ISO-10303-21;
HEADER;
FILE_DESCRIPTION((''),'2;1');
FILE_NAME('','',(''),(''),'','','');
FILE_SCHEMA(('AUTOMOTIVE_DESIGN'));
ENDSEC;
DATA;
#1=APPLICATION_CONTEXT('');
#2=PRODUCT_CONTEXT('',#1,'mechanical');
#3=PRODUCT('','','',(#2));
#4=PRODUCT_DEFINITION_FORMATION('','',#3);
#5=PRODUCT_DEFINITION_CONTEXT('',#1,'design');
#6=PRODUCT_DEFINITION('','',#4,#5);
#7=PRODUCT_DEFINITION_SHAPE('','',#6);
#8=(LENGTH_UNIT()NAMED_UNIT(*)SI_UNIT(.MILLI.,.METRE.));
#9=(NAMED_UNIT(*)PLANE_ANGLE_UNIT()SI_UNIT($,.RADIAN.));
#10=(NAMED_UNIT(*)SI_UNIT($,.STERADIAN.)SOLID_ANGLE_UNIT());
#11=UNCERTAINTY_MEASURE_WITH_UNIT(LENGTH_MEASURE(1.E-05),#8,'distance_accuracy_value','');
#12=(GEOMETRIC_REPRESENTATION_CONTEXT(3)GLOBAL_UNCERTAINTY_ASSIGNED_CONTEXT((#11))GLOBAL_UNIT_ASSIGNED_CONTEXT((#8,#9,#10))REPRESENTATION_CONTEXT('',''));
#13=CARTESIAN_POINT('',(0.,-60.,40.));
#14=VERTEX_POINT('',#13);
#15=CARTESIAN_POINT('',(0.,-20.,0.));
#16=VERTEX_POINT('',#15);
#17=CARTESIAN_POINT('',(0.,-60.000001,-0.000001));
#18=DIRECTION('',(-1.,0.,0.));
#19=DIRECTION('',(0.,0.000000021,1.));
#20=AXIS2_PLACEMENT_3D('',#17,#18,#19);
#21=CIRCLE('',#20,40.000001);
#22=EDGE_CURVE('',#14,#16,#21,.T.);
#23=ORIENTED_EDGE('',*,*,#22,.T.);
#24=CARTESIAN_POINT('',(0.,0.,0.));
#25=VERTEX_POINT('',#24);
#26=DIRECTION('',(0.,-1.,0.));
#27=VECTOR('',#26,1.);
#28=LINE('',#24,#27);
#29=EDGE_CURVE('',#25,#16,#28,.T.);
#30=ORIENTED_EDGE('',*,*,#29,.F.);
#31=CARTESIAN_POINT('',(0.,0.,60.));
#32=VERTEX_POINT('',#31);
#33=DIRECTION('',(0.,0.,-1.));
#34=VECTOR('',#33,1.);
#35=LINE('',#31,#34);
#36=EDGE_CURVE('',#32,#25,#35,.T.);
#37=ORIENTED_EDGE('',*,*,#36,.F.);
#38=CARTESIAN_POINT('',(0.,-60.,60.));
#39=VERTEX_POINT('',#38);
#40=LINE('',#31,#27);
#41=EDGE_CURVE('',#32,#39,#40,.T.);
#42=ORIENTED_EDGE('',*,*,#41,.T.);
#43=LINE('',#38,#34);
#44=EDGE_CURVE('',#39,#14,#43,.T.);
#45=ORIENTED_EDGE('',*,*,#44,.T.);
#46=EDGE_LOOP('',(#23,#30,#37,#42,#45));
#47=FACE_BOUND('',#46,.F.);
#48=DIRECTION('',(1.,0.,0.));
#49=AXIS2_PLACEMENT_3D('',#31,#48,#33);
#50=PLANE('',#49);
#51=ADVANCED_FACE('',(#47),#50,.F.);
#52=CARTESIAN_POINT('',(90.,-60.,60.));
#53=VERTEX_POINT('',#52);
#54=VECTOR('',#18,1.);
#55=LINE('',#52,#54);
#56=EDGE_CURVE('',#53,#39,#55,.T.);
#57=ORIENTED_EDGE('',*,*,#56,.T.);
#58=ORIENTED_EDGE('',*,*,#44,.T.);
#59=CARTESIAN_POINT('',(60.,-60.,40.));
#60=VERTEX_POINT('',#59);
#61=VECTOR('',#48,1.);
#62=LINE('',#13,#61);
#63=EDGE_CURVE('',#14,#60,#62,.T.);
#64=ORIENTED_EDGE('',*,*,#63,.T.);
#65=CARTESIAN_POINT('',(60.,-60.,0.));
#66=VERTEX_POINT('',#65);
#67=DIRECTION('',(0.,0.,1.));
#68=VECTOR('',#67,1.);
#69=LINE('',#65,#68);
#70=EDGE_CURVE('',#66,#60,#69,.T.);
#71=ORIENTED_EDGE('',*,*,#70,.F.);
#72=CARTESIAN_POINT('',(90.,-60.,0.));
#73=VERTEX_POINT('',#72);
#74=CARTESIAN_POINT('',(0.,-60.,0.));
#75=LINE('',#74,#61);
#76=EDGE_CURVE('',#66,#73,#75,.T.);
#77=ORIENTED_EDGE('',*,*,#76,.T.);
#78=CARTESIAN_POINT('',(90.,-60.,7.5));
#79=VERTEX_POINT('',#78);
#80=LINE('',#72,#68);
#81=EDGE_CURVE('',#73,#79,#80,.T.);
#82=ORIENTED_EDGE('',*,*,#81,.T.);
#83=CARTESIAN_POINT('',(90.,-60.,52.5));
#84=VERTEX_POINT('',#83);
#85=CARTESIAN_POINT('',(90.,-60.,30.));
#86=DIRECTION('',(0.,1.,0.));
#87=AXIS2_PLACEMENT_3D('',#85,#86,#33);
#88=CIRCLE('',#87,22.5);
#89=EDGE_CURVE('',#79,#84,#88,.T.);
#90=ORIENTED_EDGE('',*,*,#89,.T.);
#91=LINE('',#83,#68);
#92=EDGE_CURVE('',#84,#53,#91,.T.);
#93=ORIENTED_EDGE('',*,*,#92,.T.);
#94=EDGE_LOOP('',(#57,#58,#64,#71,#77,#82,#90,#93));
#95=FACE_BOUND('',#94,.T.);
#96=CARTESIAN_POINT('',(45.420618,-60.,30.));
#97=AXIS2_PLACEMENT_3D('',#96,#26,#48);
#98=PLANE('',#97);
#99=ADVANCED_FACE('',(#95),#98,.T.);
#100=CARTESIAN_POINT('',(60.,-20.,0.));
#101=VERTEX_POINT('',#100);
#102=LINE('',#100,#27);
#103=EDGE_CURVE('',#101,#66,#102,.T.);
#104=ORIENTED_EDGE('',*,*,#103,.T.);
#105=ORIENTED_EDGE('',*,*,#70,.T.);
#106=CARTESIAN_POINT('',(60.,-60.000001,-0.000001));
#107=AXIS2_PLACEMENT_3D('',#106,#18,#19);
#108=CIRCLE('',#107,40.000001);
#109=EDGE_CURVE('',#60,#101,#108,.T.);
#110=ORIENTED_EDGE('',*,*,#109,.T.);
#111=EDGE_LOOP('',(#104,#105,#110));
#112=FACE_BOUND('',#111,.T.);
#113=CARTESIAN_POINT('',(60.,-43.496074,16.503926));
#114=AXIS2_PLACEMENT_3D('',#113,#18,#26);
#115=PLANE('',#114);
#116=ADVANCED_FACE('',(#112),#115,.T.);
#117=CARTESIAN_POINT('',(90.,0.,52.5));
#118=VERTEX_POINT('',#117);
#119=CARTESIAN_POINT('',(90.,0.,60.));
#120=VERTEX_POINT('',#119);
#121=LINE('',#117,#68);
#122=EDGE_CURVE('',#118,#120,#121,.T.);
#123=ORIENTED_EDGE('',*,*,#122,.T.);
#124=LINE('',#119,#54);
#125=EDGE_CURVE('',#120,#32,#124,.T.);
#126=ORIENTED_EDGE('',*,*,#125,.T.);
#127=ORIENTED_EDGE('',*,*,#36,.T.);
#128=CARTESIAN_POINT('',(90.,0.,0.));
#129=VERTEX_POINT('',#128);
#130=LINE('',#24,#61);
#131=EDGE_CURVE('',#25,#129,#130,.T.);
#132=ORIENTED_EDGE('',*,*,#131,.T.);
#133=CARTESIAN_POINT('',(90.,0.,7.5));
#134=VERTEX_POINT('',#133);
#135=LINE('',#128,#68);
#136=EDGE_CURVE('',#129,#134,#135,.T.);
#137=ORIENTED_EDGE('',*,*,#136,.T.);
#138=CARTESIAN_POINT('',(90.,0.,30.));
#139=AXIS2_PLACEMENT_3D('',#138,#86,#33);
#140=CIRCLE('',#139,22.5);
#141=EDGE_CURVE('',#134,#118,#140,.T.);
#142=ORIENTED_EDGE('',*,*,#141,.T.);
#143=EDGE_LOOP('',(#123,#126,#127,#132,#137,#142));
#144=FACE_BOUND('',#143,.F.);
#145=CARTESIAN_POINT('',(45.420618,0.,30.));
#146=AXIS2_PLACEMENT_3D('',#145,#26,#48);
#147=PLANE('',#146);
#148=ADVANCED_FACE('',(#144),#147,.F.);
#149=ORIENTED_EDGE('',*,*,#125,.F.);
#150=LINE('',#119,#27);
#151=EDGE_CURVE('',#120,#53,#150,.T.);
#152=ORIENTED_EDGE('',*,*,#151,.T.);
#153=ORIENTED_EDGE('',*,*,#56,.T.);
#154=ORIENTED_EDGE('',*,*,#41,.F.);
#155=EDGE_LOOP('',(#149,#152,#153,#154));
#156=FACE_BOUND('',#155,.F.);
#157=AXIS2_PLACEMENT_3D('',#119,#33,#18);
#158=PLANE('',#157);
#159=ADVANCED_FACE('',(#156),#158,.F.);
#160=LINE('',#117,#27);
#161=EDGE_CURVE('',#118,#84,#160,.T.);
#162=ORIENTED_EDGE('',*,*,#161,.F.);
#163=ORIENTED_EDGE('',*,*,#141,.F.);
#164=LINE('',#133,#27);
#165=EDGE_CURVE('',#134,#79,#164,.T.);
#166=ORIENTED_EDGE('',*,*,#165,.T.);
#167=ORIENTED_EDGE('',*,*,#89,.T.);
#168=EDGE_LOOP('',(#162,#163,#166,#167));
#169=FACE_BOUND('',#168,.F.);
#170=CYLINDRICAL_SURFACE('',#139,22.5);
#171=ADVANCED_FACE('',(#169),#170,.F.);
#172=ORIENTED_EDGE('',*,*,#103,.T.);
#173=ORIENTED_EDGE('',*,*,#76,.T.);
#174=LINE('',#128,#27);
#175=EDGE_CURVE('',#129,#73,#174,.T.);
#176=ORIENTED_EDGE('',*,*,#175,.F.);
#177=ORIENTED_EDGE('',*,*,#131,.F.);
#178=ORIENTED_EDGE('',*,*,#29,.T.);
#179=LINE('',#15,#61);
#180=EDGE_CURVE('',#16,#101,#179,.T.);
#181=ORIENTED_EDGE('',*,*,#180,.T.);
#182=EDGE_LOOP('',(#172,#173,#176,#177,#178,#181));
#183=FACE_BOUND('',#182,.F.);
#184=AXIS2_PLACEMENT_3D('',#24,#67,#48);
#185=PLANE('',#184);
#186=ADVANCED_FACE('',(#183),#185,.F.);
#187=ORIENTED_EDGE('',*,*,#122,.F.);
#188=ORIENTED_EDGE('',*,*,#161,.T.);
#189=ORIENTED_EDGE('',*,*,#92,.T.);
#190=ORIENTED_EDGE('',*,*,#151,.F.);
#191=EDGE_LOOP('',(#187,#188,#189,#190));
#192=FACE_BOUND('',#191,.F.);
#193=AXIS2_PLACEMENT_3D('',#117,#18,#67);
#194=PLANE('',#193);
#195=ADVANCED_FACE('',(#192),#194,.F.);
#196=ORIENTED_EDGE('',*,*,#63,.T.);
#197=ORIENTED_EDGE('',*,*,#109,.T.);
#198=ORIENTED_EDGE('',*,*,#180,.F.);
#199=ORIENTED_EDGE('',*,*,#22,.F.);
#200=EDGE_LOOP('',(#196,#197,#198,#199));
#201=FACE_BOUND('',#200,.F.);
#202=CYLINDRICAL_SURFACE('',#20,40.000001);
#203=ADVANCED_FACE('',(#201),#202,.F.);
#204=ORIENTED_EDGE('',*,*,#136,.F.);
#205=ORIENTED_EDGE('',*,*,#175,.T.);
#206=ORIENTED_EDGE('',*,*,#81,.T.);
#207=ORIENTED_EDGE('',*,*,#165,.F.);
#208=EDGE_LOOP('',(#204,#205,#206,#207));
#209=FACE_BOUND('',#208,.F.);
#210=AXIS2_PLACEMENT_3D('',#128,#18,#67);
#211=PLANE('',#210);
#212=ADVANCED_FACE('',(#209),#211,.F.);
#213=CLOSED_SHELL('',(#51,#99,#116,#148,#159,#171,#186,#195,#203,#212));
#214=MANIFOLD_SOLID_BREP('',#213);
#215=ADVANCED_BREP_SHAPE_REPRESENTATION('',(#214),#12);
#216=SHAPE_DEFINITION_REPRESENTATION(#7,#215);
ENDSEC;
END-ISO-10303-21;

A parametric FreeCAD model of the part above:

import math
import FreeCAD as App
import Part
import Sketcher

doc = App.newDocument("Part")
body = doc.addObject("PartDesign::Body", "Body")

sketch1 = body.newObject("Sketcher::SketchObject", "Sketch")
sketch1.AttachmentSupport = (doc.getObject("XZ_Plane"), [""])
sketch1.MapMode = "FlatFace"
sketch1.addGeometry([
    Part.LineSegment(App.Vector(0, 60, 0), App.Vector(0, 0, 0)),
    Part.LineSegment(App.Vector(0, 0, 0), App.Vector(90, 0, 0)),
    Part.LineSegment(App.Vector(90, 0, 0), App.Vector(90, 8, 0)),
    Part.ArcOfCircle(Part.Circle(App.Vector(90, 30, 0), App.Vector(0, 0, 1), 22), math.radians(90), math.radians(270)),
    Part.LineSegment(App.Vector(90, 52, 0), App.Vector(90, 60, 0)),
    Part.LineSegment(App.Vector(90, 60, 0), App.Vector(0, 60, 0)),
], False)
sketch1.addConstraint([
    Sketcher.Constraint("Coincident", 0, 2, 1, 1),
    Sketcher.Constraint("Coincident", 1, 2, 2, 1),
    Sketcher.Constraint("Coincident", 2, 2, 3, 2),
    Sketcher.Constraint("Coincident", 3, 1, 4, 1),
    Sketcher.Constraint("Coincident", 4, 2, 5, 1),
    Sketcher.Constraint("Coincident", 5, 2, 0, 1),
    Sketcher.Constraint("Vertical", 0),
    Sketcher.Constraint("Horizontal", 1),
    Sketcher.Constraint("Vertical", 2),
    Sketcher.Constraint("Vertical", 4),
    Sketcher.Constraint("Horizontal", 5),
    Sketcher.Constraint("Coincident", 0, 2, -1, 1),
    Sketcher.Constraint("Vertical", 3, 3, 1, 2),
    Sketcher.Constraint("Vertical", 2, 2, 3, 1),
    Sketcher.Constraint("Equal", 2, 4),
    Sketcher.Constraint("Radius", 3, 22.5),
    Sketcher.Constraint("DistanceX", 1, 1, 1, 2, 90.0),
    Sketcher.Constraint("DistanceY", 0, 2, 0, 1, 60.0),
])
pad1 = body.newObject("PartDesign::Pad", "Pad")
pad1.Profile = sketch1
pad1.Length = 60

sketch2 = body.newObject("Sketcher::SketchObject", "Sketch001")
sketch2.AttachmentSupport = (doc.getObject("YZ_Plane"), [""])
sketch2.MapMode = "FlatFace"
sketch2.addGeometry([
    Part.LineSegment(App.Vector(-60, 0, 0), App.Vector(-60, 40, 0)),
    Part.ArcOfCircle(Part.Circle(App.Vector(-60, 0, 0), App.Vector(0, 0, 1), 40), math.radians(0), math.radians(90)),
    Part.LineSegment(App.Vector(-20, 0, 0), App.Vector(-60, 0, 0)),
], False)
sketch2.addConstraint([
    Sketcher.Constraint("Coincident", 0, 2, 1, 2),
    Sketcher.Constraint("Coincident", 1, 1, 2, 1),
    Sketcher.Constraint("Coincident", 2, 2, 0, 1),
    Sketcher.Constraint("Vertical", 0),
    Sketcher.Constraint("Horizontal", 2),
    Sketcher.Constraint("Coincident", 2, 2, 1, 3),
    Sketcher.Constraint("PointOnObject", 1, 3, -1),
    Sketcher.Constraint("Radius", 1, 40.000001),
    Sketcher.Constraint("DistanceX", 1, 3, -1, 1, 60.000001),
])
pocket1 = body.newObject("PartDesign::Pocket", "Pocket")
pocket1.Profile = sketch2
pocket1.Length = 60
pocket1.Reversed = True

doc.recompute()
